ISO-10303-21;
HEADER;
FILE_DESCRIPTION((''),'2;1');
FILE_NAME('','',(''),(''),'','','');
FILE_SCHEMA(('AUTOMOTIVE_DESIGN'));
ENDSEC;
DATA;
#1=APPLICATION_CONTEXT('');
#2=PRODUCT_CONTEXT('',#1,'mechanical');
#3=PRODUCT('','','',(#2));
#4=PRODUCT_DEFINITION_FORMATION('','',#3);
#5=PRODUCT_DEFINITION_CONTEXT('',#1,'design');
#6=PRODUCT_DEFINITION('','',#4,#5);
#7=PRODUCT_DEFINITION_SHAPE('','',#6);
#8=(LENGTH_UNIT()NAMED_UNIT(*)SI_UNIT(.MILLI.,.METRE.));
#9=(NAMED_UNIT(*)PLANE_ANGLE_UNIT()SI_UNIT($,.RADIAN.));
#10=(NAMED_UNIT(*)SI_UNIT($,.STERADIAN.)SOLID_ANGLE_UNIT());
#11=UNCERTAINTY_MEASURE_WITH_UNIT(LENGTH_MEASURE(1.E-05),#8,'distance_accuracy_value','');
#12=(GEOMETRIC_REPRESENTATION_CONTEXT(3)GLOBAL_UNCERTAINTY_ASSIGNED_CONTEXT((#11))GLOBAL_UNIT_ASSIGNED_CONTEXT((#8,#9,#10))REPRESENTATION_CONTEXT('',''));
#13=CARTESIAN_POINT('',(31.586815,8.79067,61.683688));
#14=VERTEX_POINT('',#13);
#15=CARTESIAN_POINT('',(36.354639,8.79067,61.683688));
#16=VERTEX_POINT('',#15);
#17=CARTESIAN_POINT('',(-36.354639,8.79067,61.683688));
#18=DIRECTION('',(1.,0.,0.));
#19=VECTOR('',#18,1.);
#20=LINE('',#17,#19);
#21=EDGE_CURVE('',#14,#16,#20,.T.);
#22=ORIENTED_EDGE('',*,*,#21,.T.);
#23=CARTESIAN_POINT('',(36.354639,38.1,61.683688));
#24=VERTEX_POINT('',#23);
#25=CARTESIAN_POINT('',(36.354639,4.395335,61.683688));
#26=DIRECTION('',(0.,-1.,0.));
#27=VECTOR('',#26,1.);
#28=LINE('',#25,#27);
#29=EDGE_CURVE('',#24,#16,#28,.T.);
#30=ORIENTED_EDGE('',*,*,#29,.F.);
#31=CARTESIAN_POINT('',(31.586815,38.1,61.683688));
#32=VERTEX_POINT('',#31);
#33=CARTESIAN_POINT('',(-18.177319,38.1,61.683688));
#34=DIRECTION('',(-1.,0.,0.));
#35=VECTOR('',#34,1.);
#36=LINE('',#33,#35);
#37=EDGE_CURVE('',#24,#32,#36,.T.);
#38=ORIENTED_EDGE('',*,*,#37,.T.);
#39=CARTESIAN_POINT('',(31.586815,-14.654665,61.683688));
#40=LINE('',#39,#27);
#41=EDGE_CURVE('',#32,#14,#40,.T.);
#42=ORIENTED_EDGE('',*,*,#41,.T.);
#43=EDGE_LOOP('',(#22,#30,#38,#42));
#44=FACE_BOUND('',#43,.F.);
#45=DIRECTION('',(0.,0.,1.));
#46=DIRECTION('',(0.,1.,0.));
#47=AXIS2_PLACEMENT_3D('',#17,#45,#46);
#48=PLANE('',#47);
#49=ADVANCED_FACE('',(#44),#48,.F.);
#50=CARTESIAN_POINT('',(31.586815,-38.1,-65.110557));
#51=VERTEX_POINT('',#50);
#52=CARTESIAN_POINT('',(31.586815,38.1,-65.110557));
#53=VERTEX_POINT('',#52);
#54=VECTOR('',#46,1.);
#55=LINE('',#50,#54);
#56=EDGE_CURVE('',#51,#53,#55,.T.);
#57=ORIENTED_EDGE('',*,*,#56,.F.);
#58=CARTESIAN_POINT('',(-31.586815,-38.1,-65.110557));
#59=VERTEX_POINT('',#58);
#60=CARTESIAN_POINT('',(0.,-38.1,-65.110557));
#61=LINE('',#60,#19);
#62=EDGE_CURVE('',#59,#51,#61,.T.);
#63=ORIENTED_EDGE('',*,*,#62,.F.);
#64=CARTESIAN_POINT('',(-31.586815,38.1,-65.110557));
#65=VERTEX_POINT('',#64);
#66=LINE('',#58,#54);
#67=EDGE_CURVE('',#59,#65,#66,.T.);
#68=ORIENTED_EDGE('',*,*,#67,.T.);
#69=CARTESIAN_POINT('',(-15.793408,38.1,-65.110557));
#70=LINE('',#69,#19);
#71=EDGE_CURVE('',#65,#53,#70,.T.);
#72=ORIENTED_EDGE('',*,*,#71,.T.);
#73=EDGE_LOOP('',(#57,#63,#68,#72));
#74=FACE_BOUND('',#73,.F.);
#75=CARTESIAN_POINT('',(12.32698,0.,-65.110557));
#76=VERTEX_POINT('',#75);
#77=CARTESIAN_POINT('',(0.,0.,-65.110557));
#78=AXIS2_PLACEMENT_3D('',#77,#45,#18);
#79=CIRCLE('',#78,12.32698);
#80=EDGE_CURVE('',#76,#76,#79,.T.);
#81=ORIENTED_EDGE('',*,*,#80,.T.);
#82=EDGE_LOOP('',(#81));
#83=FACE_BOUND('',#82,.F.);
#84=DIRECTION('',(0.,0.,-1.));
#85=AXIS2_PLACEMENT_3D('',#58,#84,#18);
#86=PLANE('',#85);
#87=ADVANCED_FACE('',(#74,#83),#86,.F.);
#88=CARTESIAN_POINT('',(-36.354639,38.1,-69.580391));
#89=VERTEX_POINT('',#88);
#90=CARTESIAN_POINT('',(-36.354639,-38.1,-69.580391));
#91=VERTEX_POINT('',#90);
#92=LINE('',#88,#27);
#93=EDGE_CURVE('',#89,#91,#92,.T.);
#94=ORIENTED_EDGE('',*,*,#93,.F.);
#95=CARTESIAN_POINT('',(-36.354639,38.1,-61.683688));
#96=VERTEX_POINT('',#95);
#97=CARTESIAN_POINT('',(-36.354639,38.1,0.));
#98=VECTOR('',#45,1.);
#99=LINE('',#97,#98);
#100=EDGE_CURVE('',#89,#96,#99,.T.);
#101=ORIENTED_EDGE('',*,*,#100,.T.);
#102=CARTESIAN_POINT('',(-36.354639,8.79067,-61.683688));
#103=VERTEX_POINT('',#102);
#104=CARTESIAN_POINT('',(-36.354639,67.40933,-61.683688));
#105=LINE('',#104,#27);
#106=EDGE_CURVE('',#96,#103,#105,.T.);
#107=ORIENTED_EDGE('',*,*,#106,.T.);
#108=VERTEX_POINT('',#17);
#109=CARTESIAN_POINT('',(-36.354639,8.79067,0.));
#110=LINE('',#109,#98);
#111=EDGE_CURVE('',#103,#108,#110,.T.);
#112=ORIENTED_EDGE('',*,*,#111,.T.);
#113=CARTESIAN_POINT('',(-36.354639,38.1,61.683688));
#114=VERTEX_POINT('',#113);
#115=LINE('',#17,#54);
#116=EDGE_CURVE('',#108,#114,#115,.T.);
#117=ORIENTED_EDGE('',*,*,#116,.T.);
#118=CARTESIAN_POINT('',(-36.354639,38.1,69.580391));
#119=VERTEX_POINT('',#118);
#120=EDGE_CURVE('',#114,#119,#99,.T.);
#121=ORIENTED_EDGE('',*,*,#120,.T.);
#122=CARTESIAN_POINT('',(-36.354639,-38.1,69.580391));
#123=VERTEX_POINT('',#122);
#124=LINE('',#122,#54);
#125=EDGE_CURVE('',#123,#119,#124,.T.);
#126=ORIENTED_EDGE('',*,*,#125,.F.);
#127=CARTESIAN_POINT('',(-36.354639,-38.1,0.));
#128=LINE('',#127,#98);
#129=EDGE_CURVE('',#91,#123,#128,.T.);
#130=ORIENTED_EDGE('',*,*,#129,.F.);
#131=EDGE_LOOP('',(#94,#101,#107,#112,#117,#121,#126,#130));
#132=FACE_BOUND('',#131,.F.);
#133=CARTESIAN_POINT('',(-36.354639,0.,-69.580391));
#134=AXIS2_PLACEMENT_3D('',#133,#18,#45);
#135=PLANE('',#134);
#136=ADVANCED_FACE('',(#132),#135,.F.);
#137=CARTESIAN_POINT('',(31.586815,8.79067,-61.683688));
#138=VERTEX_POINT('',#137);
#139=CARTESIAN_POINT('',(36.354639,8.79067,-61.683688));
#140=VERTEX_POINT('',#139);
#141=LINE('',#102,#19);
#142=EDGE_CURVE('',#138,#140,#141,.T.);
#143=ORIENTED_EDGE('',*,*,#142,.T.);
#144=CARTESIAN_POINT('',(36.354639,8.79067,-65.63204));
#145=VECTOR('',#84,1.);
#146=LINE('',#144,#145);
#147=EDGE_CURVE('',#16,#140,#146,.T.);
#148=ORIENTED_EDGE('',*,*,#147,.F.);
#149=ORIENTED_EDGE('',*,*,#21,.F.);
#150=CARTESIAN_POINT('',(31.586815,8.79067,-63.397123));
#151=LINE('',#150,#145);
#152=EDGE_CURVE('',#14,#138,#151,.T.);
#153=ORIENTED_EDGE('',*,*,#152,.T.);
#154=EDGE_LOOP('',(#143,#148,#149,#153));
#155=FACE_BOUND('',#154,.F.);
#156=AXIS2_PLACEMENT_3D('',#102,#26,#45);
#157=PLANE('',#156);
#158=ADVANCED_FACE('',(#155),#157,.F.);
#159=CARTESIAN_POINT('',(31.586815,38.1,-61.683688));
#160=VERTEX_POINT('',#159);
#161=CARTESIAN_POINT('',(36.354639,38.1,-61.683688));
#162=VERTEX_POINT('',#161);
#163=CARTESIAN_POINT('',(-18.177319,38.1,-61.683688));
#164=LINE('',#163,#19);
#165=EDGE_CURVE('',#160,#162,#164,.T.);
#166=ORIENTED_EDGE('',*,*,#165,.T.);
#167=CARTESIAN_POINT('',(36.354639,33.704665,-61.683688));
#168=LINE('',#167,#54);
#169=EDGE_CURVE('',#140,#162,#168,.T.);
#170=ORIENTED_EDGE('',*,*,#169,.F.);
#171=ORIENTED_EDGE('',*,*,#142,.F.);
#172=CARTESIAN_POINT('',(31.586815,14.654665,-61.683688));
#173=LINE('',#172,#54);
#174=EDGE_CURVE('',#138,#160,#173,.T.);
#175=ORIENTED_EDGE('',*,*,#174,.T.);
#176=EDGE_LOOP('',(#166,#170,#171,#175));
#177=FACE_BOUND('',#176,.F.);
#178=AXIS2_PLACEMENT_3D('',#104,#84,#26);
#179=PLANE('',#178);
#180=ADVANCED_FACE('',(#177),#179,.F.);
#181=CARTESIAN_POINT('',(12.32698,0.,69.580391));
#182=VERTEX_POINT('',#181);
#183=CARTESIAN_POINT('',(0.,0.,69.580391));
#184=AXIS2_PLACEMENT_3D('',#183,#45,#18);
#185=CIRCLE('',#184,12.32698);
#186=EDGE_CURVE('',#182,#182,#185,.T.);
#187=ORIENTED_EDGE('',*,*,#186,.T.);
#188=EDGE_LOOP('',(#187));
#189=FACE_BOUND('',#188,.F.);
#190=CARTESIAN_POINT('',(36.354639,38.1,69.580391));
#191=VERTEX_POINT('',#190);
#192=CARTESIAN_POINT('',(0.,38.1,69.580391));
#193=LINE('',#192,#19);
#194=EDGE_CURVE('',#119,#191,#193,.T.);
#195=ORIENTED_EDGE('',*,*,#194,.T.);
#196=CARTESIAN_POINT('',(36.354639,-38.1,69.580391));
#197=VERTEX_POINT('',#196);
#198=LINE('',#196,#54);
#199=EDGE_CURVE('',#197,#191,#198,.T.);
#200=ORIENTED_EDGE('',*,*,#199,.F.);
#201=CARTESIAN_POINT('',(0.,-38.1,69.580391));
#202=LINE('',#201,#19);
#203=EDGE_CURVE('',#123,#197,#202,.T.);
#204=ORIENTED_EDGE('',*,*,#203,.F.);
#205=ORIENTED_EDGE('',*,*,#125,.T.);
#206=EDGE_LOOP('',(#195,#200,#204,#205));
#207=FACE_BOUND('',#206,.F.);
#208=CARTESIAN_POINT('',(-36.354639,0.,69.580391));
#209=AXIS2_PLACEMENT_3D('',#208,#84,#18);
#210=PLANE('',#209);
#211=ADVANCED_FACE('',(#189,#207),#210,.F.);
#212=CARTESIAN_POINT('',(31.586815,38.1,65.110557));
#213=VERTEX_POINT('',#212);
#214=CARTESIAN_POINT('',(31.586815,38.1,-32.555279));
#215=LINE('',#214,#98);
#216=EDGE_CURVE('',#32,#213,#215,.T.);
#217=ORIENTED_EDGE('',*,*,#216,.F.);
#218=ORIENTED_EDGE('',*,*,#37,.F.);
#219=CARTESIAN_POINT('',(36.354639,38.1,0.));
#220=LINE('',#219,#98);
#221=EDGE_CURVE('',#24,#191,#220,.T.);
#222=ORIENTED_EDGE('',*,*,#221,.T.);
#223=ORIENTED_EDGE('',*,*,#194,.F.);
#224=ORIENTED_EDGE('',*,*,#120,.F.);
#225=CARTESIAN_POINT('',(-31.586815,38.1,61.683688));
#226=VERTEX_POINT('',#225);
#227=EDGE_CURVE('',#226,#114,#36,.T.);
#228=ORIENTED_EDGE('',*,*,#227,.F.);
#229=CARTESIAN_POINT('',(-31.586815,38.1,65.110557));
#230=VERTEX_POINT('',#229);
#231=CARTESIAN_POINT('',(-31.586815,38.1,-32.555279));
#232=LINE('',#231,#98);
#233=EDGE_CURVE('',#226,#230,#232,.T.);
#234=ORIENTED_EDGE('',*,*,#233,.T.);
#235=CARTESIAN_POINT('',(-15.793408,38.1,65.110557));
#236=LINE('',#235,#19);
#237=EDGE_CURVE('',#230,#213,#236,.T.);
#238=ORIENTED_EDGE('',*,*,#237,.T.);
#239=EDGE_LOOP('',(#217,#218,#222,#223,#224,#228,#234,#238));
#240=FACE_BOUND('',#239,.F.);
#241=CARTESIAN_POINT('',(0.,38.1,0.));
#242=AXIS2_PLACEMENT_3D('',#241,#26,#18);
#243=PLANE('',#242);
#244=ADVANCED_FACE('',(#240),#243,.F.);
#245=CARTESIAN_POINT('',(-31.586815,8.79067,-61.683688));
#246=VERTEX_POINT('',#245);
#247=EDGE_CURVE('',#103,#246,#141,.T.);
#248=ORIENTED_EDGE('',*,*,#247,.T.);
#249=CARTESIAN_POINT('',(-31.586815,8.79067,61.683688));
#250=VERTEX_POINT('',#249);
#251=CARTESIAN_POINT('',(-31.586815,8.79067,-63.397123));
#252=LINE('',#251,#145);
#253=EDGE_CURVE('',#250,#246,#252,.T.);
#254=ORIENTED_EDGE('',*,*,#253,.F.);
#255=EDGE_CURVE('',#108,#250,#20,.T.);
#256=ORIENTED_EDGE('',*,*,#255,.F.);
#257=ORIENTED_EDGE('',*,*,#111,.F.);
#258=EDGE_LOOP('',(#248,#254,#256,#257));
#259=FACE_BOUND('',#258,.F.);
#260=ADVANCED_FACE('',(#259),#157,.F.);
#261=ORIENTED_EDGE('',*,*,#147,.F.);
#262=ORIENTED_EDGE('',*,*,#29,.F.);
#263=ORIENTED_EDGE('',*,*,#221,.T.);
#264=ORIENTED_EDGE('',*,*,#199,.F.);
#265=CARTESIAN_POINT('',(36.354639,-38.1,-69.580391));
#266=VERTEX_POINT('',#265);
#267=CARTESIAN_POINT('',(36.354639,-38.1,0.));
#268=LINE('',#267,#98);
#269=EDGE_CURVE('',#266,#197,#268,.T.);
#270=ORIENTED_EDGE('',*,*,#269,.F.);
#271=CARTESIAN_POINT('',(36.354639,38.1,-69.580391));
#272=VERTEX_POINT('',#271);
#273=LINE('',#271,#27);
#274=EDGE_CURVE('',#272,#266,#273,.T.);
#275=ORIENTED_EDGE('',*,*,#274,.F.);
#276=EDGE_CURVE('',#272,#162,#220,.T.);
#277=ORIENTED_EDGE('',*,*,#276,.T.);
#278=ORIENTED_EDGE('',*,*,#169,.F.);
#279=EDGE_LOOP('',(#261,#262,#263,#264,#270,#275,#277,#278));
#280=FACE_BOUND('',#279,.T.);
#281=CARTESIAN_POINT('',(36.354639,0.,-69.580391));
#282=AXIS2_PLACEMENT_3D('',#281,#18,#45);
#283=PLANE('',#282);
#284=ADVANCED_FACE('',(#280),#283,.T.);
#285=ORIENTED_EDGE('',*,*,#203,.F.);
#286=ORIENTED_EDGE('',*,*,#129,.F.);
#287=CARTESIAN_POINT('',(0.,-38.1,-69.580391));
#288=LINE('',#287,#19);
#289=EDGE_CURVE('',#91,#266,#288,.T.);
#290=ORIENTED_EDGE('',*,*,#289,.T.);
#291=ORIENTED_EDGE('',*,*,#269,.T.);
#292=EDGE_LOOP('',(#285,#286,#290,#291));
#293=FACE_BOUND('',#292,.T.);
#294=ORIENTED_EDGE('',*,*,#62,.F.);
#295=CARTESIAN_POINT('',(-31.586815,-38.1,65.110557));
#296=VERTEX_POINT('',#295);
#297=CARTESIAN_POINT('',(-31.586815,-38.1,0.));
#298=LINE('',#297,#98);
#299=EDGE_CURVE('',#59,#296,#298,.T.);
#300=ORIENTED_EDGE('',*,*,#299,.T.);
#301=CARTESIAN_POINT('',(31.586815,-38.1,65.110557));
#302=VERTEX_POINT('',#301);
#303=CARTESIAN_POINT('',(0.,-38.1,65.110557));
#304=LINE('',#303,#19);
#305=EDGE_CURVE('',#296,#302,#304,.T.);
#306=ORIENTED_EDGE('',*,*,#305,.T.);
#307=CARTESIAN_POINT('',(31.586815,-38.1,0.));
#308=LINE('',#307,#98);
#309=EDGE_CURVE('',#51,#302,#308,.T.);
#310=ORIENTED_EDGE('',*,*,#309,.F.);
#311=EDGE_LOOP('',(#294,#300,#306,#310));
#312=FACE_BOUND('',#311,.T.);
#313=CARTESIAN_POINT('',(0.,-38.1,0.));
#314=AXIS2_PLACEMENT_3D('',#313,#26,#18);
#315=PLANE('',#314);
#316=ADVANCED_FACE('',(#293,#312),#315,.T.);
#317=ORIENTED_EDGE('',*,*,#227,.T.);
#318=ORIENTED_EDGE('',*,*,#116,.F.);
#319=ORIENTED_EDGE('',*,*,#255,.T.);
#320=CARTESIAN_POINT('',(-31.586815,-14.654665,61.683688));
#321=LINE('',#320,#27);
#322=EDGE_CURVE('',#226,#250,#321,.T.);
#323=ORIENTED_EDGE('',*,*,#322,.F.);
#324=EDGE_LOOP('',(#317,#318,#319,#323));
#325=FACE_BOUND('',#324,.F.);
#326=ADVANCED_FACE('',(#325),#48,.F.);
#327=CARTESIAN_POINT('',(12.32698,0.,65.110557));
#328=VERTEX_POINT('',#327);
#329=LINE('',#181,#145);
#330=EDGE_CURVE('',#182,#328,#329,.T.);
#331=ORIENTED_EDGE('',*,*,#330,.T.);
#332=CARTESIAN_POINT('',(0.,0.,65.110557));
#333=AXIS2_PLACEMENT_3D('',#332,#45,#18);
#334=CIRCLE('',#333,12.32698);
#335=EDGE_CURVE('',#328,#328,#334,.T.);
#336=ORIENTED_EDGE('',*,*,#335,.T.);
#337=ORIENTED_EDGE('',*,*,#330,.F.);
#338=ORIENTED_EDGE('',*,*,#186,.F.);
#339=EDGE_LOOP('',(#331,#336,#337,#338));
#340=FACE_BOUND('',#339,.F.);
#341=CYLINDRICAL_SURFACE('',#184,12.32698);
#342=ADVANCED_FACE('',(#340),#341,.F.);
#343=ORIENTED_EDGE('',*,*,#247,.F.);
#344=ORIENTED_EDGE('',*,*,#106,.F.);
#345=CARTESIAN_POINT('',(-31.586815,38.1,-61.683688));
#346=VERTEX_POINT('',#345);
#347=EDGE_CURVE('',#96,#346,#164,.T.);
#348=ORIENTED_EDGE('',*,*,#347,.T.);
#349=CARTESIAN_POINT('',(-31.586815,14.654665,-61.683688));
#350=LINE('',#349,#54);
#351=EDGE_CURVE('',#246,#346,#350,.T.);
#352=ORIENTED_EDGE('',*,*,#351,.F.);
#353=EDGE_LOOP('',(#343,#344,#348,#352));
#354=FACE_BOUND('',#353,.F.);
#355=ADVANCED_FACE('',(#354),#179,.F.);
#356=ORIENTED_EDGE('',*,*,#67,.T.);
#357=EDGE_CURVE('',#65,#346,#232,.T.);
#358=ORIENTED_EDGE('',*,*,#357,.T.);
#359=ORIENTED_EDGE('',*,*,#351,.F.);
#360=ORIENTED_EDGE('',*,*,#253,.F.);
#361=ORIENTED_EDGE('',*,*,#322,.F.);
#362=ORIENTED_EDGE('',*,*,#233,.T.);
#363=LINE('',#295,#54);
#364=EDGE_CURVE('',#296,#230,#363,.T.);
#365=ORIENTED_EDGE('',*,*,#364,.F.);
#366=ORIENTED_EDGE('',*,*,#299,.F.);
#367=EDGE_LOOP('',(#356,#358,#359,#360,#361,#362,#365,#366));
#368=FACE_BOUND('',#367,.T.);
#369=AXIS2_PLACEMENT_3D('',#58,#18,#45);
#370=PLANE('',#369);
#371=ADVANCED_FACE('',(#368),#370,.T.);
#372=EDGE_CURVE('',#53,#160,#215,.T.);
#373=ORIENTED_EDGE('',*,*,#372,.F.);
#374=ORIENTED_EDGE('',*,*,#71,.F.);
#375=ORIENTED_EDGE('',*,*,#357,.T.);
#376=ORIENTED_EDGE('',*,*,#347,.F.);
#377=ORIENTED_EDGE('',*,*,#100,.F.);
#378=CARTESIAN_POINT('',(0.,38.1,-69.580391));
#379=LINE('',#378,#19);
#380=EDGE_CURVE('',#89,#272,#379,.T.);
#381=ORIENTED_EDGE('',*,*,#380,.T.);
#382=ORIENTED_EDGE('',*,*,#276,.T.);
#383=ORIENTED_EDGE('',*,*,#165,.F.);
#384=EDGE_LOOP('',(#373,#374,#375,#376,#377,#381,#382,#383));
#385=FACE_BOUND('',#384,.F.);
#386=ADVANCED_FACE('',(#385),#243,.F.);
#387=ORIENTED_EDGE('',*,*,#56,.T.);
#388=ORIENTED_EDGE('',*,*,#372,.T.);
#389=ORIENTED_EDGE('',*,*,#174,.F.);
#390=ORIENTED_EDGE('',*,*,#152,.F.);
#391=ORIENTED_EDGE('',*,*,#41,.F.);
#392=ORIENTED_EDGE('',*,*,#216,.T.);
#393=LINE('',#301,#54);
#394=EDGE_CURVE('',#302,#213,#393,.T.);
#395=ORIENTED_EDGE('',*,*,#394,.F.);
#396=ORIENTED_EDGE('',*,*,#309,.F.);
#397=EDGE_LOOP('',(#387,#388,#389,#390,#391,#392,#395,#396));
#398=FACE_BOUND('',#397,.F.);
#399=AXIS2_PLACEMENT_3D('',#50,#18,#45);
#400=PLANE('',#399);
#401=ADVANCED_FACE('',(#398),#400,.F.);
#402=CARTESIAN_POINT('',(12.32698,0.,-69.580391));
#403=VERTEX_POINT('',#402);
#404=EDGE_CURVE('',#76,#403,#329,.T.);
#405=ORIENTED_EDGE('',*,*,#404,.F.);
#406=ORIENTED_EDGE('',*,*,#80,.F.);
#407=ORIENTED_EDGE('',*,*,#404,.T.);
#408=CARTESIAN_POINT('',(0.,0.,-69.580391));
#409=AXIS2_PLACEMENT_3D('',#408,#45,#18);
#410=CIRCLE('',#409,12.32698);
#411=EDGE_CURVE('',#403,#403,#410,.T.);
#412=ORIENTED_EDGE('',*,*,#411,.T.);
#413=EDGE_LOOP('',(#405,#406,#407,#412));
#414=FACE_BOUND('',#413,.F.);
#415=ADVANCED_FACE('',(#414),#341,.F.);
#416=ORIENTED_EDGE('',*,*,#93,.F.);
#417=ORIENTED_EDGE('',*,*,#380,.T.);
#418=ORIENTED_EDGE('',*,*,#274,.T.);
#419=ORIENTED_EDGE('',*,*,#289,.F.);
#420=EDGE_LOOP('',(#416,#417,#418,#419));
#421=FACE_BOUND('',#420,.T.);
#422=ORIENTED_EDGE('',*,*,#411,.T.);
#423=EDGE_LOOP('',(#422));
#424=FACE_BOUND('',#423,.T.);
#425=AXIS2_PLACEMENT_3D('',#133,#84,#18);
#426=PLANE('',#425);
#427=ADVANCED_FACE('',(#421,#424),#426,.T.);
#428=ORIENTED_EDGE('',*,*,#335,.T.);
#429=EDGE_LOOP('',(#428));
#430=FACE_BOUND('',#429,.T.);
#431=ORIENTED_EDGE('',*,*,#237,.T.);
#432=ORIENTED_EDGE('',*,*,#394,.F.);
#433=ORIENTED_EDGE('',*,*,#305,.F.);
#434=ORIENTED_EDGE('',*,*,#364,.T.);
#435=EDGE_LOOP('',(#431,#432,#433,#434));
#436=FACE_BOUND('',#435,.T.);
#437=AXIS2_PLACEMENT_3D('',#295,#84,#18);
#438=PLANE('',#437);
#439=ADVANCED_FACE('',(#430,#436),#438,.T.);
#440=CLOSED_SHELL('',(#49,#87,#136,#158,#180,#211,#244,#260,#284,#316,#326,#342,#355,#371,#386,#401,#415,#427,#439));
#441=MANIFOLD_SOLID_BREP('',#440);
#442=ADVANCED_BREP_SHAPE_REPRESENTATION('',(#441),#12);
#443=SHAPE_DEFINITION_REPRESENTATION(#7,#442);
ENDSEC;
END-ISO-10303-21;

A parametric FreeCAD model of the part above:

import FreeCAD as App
import Part
import Sketcher
from FreeCAD import Vector
Q = App.Units.Quantity

doc = App.newDocument("Part")
body = doc.addObject("PartDesign::Body", "Body")

sketch1 = body.newObject("Sketcher::SketchObject", "Sketch")
sketch1.AttachmentSupport = (doc.getObject("XZ_Plane"), [""])
sketch1.MapMode = "FlatFace"
sketch1.addGeometry([
    Part.LineSegment(Vector(-36, 70, 0), Vector(-36, -70, 0)),
    Part.LineSegment(Vector(-36, -70, 0), Vector(36, -70, 0)),
    Part.LineSegment(Vector(36, -70, 0), Vector(36, 70, 0)),
    Part.LineSegment(Vector(36, 70, 0), Vector(-36, 70, 0)),
], False)
sketch1.addConstraint([
    Sketcher.Constraint("Coincident", 0, 2, 1, 1),
    Sketcher.Constraint("Coincident", 1, 2, 2, 1),
    Sketcher.Constraint("Coincident", 2, 2, 3, 1),
    Sketcher.Constraint("Coincident", 3, 2, 0, 1),
    Sketcher.Constraint("Vertical", 0),
    Sketcher.Constraint("Horizontal", 1),
    Sketcher.Constraint("Vertical", 2),
    Sketcher.Constraint("Horizontal", 3),
    Sketcher.Constraint("Symmetric", 0, 2, 2, 2, -1, 1),
    Sketcher.Constraint("DistanceX", 1, 1, 1, 2, 72.709278),
    Sketcher.Constraint("DistanceY", 0, 2, 0, 1, 139.160782),
])
pad1 = body.newObject("PartDesign::Pad", "Pad")
pad1.Profile = sketch1
pad1.Length = Q("3 in")
pad1.Midplane = True

sketch2 = body.newObject("Sketcher::SketchObject", "Sketch001")
sketch2.AttachmentSupport = (doc.getObject("XZ_Plane"), [""])
sketch2.MapMode = "FlatFace"
sketch2.AttachmentOffset = App.Placement(Vector(0, 0, 1.5 * 25.4), App.Rotation())
sketch2.addGeometry([
    Part.LineSegment(Vector(-32, 65, 0), Vector(-32, -65, 0)),
    Part.LineSegment(Vector(-32, -65, 0), Vector(32, -65, 0)),
    Part.LineSegment(Vector(32, -65, 0), Vector(32, 65, 0)),
    Part.LineSegment(Vector(32, 65, 0), Vector(-32, 65, 0)),
], False)
sketch2.addConstraint([
    Sketcher.Constraint("Coincident", 0, 2, 1, 1),
    Sketcher.Constraint("Coincident", 1, 2, 2, 1),
    Sketcher.Constraint("Coincident", 2, 2, 3, 1),
    Sketcher.Constraint("Coincident", 3, 2, 0, 1),
    Sketcher.Constraint("Vertical", 0),
    Sketcher.Constraint("Horizontal", 1),
    Sketcher.Constraint("Vertical", 2),
    Sketcher.Constraint("Horizontal", 3),
    Sketcher.Constraint("Symmetric", 0, 2, 2, 2, -1, 1),
    Sketcher.Constraint("DistanceX", 1, 1, 1, 2, 63.17363),
    Sketcher.Constraint("DistanceY", 0, 2, 0, 1, 130.221114),
])
pocket1 = body.newObject("PartDesign::Pocket", "Pocket")
pocket1.Profile = sketch2
pocket1.Type = "ThroughAll"

sketch3 = body.newObject("Sketcher::SketchObject", "Sketch002")
sketch3.AttachmentSupport = (doc.getObject("XY_Plane"), [""])
sketch3.MapMode = "FlatFace"
sketch3.AttachmentOffset = App.Placement(Vector(0, 0, 69.580391), App.Rotation())
sketch3.addGeometry(Part.Circle(Vector(0, 0, 0), Vector(0, 0, 1), 12), False)
sketch3.addConstraint([
    Sketcher.Constraint("Coincident", 0, 3, -1, 1),
    Sketcher.Constraint("Diameter", 0, 24.65396),
])
pocket2 = body.newObject("PartDesign::Pocket", "Pocket001")
pocket2.Profile = sketch3
pocket2.Type = "ThroughAll"

sketch4 = body.newObject("Sketcher::SketchObject", "Sketch003")
sketch4.AttachmentSupport = (doc.getObject("YZ_Plane"), [""])
sketch4.MapMode = "FlatFace"
sketch4.AttachmentOffset = App.Placement(Vector(0, 0, -36.354639), App.Rotation())
sketch4.addGeometry([
    Part.LineSegment(Vector(9, -62, 0), Vector(9, 62, 0)),
    Part.LineSegment(Vector(9, 62, 0), Vector(67, 62, 0)),
    Part.LineSegment(Vector(67, 62, 0), Vector(67, -62, 0)),
    Part.LineSegment(Vector(67, -62, 0), Vector(9, -62, 0)),
], False)
sketch4.addConstraint([
    Sketcher.Constraint("Coincident", 0, 2, 1, 1),
    Sketcher.Constraint("Coincident", 1, 2, 2, 1),
    Sketcher.Constraint("Coincident", 2, 2, 3, 1),
    Sketcher.Constraint("Coincident", 3, 2, 0, 1),
    Sketcher.Constraint("Vertical", 0),
    Sketcher.Constraint("Horizontal", 1),
    Sketcher.Constraint("Vertical", 2),
    Sketcher.Constraint("Horizontal", 3),
    Sketcher.Constraint("DistanceX", 1, 1, 1, 2, 58.61866),
    Sketcher.Constraint("DistanceY", 0, 1, 0, 2, 123.367376),
    Sketcher.Constraint("DistanceX", -1, 1, 0, 2, 8.79067),
    Sketcher.Constraint("DistanceY", -1, 1, 0, 2, 61.683688),
])
pocket3 = body.newObject("PartDesign::Pocket", "Pocket002")
pocket3.Profile = sketch4
pocket3.Type = "ThroughAll"
pocket3.Reversed = True

doc.recompute()
